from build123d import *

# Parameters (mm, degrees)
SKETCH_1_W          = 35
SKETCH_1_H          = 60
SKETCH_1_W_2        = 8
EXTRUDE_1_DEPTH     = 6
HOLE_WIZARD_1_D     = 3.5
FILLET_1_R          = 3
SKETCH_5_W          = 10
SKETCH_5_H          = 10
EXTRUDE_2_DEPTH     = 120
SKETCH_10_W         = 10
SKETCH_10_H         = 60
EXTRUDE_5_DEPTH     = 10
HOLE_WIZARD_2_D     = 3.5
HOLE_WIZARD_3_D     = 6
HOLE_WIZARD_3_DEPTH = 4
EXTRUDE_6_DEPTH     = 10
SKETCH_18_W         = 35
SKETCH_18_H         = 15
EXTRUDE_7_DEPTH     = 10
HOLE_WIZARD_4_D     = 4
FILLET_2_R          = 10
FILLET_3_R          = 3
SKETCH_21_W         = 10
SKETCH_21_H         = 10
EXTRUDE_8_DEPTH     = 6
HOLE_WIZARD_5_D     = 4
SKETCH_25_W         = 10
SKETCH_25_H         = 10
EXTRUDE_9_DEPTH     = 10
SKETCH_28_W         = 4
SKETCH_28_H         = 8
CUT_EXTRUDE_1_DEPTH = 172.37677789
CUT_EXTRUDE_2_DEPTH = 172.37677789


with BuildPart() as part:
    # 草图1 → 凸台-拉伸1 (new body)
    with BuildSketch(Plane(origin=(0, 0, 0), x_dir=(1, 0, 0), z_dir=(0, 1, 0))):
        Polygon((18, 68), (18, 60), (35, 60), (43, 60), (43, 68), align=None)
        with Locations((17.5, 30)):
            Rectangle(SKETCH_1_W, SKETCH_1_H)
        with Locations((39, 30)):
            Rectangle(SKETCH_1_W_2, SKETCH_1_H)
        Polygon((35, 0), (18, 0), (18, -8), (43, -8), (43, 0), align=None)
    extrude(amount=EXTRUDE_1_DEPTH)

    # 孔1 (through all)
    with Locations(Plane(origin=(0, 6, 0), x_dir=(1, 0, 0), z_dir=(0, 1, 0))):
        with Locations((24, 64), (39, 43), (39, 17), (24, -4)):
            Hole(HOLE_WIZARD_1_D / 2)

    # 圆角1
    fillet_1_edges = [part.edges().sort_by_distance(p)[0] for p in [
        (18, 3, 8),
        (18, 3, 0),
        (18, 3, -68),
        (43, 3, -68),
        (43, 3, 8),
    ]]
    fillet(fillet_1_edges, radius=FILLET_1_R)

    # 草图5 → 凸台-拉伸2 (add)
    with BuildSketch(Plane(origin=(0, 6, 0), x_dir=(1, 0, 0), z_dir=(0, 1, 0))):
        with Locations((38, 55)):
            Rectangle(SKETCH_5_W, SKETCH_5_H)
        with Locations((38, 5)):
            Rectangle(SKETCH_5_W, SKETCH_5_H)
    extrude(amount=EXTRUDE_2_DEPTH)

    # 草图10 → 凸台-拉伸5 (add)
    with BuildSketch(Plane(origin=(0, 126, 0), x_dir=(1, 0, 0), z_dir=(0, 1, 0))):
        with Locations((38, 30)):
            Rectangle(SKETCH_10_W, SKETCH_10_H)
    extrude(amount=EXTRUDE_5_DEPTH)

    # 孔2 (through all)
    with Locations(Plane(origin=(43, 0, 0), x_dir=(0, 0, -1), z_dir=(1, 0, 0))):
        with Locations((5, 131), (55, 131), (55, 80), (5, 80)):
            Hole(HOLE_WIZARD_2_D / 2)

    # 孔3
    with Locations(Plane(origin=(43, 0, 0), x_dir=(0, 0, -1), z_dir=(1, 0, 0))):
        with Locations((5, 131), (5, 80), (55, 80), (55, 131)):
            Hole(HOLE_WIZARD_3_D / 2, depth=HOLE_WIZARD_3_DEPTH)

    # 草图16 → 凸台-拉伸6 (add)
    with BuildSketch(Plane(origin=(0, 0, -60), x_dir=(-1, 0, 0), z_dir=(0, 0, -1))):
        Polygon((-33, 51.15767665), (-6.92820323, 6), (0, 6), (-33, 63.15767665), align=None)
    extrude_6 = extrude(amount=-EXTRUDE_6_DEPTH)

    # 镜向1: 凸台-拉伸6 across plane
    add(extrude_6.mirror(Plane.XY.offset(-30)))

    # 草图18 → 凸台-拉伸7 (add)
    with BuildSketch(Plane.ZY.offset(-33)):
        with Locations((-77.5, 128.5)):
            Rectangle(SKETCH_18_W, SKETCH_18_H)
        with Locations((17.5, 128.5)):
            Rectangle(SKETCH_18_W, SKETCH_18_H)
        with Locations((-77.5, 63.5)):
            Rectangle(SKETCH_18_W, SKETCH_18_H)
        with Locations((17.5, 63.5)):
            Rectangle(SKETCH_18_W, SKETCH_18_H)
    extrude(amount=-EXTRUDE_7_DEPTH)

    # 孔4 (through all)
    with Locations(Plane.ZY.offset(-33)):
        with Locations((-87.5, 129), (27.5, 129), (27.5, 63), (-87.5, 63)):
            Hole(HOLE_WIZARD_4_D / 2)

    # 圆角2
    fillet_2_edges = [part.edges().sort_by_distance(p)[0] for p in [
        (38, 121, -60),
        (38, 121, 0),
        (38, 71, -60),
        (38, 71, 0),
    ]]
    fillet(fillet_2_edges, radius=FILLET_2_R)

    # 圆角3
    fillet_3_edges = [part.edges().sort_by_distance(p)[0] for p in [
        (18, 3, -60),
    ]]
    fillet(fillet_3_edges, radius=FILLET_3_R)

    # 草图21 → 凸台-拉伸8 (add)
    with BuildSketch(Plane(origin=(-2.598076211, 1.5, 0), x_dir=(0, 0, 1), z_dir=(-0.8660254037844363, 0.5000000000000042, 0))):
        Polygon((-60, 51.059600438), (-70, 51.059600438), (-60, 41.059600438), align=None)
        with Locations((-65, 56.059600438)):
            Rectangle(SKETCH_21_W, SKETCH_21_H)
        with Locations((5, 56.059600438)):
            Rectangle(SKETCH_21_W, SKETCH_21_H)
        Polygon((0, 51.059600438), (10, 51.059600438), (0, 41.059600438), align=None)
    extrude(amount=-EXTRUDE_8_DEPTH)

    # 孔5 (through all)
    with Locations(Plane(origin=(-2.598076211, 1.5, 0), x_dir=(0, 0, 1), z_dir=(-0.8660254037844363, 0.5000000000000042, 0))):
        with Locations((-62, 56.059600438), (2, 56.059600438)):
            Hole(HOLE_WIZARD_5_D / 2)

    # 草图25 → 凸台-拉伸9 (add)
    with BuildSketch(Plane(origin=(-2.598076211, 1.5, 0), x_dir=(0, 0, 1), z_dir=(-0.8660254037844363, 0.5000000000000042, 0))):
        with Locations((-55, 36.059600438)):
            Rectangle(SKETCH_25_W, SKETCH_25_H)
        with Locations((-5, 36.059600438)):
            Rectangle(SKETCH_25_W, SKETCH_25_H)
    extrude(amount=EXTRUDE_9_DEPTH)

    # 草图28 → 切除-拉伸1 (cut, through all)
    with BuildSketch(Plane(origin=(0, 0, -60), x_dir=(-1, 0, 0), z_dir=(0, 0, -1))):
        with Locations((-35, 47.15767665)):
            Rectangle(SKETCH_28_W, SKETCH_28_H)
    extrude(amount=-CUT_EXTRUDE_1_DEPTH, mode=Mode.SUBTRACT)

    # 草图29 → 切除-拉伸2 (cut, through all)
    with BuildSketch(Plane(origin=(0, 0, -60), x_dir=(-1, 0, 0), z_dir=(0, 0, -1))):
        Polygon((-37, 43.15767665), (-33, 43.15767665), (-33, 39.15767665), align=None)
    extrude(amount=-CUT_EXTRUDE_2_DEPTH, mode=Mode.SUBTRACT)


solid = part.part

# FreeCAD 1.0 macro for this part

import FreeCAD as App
import Part
import Sketcher

V = App.Vector
Q = App.Units.Quantity


def edges_at(feature, points):
    """Names of the edges that pass closest to the given points."""
    edges = feature.Shape.Edges
    near = lambda p: min(range(len(edges)), key=lambda i: edges[i].distToShape(Part.Vertex(*p))[0])
    return sorted({f"Edge{near(p) + 1}" for p in points})

doc = App.newDocument("Part")
body = doc.addObject("PartDesign::Body", "Body")

# Sketch on XZ plane
sketch1 = body.newObject("Sketcher::SketchObject", "Sketch")
sketch1.AttachmentSupport = (doc.getObject("XZ_Plane"), [""])
sketch1.MapMode = "FlatFace"
sketch1.addGeometry([
    Part.LineSegment(V(18, -68, 0), V(18, -60, 0)),  # 0
    Part.LineSegment(V(18, -60, 0), V(0, -60, 0)),  # 1
    Part.LineSegment(V(0, -60, 0), V(0, 0, 0)),  # 2
    Part.LineSegment(V(0, 0, 0), V(18, 0, 0)),  # 3
    Part.LineSegment(V(18, 0, 0), V(18, 8, 0)),  # 4
    Part.LineSegment(V(18, 8, 0), V(43, 8, 0)),  # 5
    Part.LineSegment(V(43, 8, 0), V(43, -68, 0)),  # 6
    Part.LineSegment(V(43, -68, 0), V(18, -68, 0)),  # 7
], False)
sketch1.addConstraint([
    Sketcher.Constraint("Coincident", 0, 2, 1, 1),
    Sketcher.Constraint("Coincident", 1, 2, 2, 1),
    Sketcher.Constraint("Coincident", 2, 2, 3, 1),
    Sketcher.Constraint("Coincident", 3, 2, 4, 1),
    Sketcher.Constraint("Coincident", 4, 2, 5, 1),
    Sketcher.Constraint("Coincident", 5, 2, 6, 1),
    Sketcher.Constraint("Coincident", 6, 2, 7, 1),
    Sketcher.Constraint("Coincident", 7, 2, 0, 1),
    Sketcher.Constraint("Vertical", 0),
    Sketcher.Constraint("Horizontal", 1),
    Sketcher.Constraint("Vertical", 2),
    Sketcher.Constraint("Horizontal", 3),
    Sketcher.Constraint("Vertical", 4),
    Sketcher.Constraint("Horizontal", 5),
    Sketcher.Constraint("Vertical", 6),
    Sketcher.Constraint("Horizontal", 7),
    Sketcher.Constraint("Coincident", 2, 2, -1, 1),
    Sketcher.Constraint("Vertical", 0, 2, 3, 2),
    Sketcher.Constraint("Equal", 0, 4),
    Sketcher.Constraint("DistanceX", 1, 2, 1, 1, Q("18 mm")),
    Sketcher.Constraint("DistanceX", 5, 1, 5, 2, Q("25 mm")),
    Sketcher.Constraint("DistanceY", 0, 1, 0, 2, Q("8 mm")),
    Sketcher.Constraint("DistanceY", 2, 1, 2, 2, Q("60 mm")),
])
pad1 = body.newObject("PartDesign::Pad", "Pad")
pad1.Profile = sketch1
pad1.Length = 6
pad1.Reversed = True

# Sketch on XZ plane
sketch2 = body.newObject("Sketcher::SketchObject", "Sketch001")
sketch2.AttachmentSupport = (doc.getObject("XZ_Plane"), [""])
sketch2.MapMode = "FlatFace"
sketch2.AttachmentOffset = App.Placement(V(0, 0, -6), App.Rotation())
sketch2.addGeometry([
    Part.Circle(V(24, -64, 0), V(0, 0, 1), 1.8),
    Part.Circle(V(39, -43, 0), V(0, 0, 1), 1.8),
    Part.Circle(V(39, -17, 0), V(0, 0, 1), 1.8),
    Part.Circle(V(24, 4, 0), V(0, 0, 1), 1.8),
], False)
sketch2.addConstraint([
    Sketcher.Constraint("Equal", 0, 1),
    Sketcher.Constraint("Equal", 1, 2),
    Sketcher.Constraint("Equal", 2, 3),
    Sketcher.Constraint("Vertical", 1, 3, 2, 3),
    Sketcher.Constraint("Vertical", 0, 3, 3, 3),
    Sketcher.Constraint("Diameter", 0, Q("3.5 mm")),
    Sketcher.Constraint("DistanceX", -1, 1, 0, 3, Q("24 mm")),
    Sketcher.Constraint("DistanceY", 0, 3, -1, 1, Q("64 mm")),
    Sketcher.Constraint("DistanceX", -1, 1, 1, 3, Q("39 mm")),
    Sketcher.Constraint("DistanceY", 1, 3, -1, 1, Q("43 mm")),
    Sketcher.Constraint("DistanceY", 2, 3, -1, 1, Q("17 mm")),
    Sketcher.Constraint("DistanceY", -1, 1, 3, 3, Q("4 mm")),
])
doc.recompute()
hole = body.newObject("PartDesign::Hole", "Hole")
hole.Profile = sketch2
hole.ThreadType = "None"
hole.Diameter = 3.5
hole.DepthType = "ThroughAll"
hole.Reversed = True
doc.recompute()

fillet = body.newObject("PartDesign::Fillet", "Fillet")
fillet.Base = (hole, edges_at(hole, [
    (18, 3, 8),
    (18, 3, 0),
    (18, 3, -68),
    (43, 3, -68),
    (43, 3, 8),
]))
fillet.Radius = 3

# Sketch on XZ plane
sketch3 = body.newObject("Sketcher::SketchObject", "Sketch002")
sketch3.AttachmentSupport = (doc.getObject("XZ_Plane"), [""])
sketch3.MapMode = "FlatFace"
sketch3.AttachmentOffset = App.Placement(V(0, 0, -6), App.Rotation())
sketch3.addGeometry([
    Part.LineSegment(V(33, -60, 0), V(33, -50, 0)),  # 0
    Part.LineSegment(V(33, -50, 0), V(43, -50, 0)),  # 1
    Part.LineSegment(V(43, -50, 0), V(43, -60, 0)),  # 2
    Part.LineSegment(V(43, -60, 0), V(33, -60, 0)),  # 3
    Part.LineSegment(V(33, -10, 0), V(33, 0, 0)),  # 4
    Part.LineSegment(V(33, 0, 0), V(43, 0, 0)),  # 5
    Part.LineSegment(V(43, 0, 0), V(43, -10, 0)),  # 6
    Part.LineSegment(V(43, -10, 0), V(33, -10, 0)),  # 7
], False)
sketch3.addConstraint([
    Sketcher.Constraint("Coincident", 0, 2, 1, 1),
    Sketcher.Constraint("Coincident", 1, 2, 2, 1),
    Sketcher.Constraint("Coincident", 2, 2, 3, 1),
    Sketcher.Constraint("Coincident", 3, 2, 0, 1),
    Sketcher.Constraint("Coincident", 4, 2, 5, 1),
    Sketcher.Constraint("Coincident", 5, 2, 6, 1),
    Sketcher.Constraint("Coincident", 6, 2, 7, 1),
    Sketcher.Constraint("Coincident", 7, 2, 4, 1),
    Sketcher.Constraint("Vertical", 0),
    Sketcher.Constraint("Horizontal", 1),
    Sketcher.Constraint("Vertical", 2),
    Sketcher.Constraint("Horizontal", 3),
    Sketcher.Constraint("Vertical", 4),
    Sketcher.Constraint("Horizontal", 5),
    Sketcher.Constraint("Vertical", 6),
    Sketcher.Constraint("Horizontal", 7),
    Sketcher.Constraint("PointOnObject", 4, 2, -1),
    Sketcher.Constraint("Vertical", 3, 2, 4, 2),
    Sketcher.Constraint("Vertical", 2, 2, 5, 2),
    Sketcher.Constraint("Equal", 7, 0),
    Sketcher.Constraint("Equal", 2, 4),
    Sketcher.Constraint("DistanceX", 1, 1, 1, 2, Q("10 mm")),
    Sketcher.Constraint("DistanceX", -1, 1, 0, 2, Q("33 mm")),
    Sketcher.Constraint("DistanceY", 0, 2, -1, 1, Q("50 mm")),
])
pad2 = body.newObject("PartDesign::Pad", "Pad001")
pad2.Profile = sketch3
pad2.Length = 120
pad2.Reversed = True

# Sketch on XZ plane
sketch4 = body.newObject("Sketcher::SketchObject", "Sketch003")
sketch4.AttachmentSupport = (doc.getObject("XZ_Plane"), [""])
sketch4.MapMode = "FlatFace"
sketch4.AttachmentOffset = App.Placement(V(0, 0, -126), App.Rotation())
sketch4.addGeometry([
    Part.LineSegment(V(33, -60, 0), V(33, 0, 0)),
    Part.LineSegment(V(33, 0, 0), V(43, 0, 0)),
    Part.LineSegment(V(43, 0, 0), V(43, -60, 0)),
    Part.LineSegment(V(43, -60, 0), V(33, -60, 0)),
], False)
sketch4.addConstraint([
    Sketcher.Constraint("Coincident", 0, 2, 1, 1),
    Sketcher.Constraint("Coincident", 1, 2, 2, 1),
    Sketcher.Constraint("Coincident", 2, 2, 3, 1),
    Sketcher.Constraint("Coincident", 3, 2, 0, 1),
    Sketcher.Constraint("Vertical", 0),
    Sketcher.Constraint("Horizontal", 1),
    Sketcher.Constraint("Vertical", 2),
    Sketcher.Constraint("Horizontal", 3),
    Sketcher.Constraint("PointOnObject", 0, 2, -1),
    Sketcher.Constraint("DistanceX", 1, 1, 1, 2, Q("10 mm")),
    Sketcher.Constraint("DistanceY", 0, 1, 0, 2, Q("60 mm")),
    Sketcher.Constraint("DistanceX", -1, 1, 0, 2, Q("33 mm")),
])
pad3 = body.newObject("PartDesign::Pad", "Pad002")
pad3.Profile = sketch4
pad3.Length = 10
pad3.Reversed = True

# Sketch on YZ plane
sketch5 = body.newObject("Sketcher::SketchObject", "Sketch004")
sketch5.AttachmentSupport = (doc.getObject("YZ_Plane"), [""])
sketch5.MapMode = "FlatFace"
sketch5.AttachmentOffset = App.Placement(V(0, 0, 43), App.Rotation())
sketch5.addGeometry([
    Part.Circle(V(131, -5, 0), V(0, 0, 1), 1.8),
    Part.Circle(V(131, -55, 0), V(0, 0, 1), 1.8),
    Part.Circle(V(80, -55, 0), V(0, 0, 1), 1.8),
    Part.Circle(V(80, -5, 0), V(0, 0, 1), 1.8),
], False)
sketch5.addConstraint([
    Sketcher.Constraint("Equal", 0, 1),
    Sketcher.Constraint("Equal", 1, 2),
    Sketcher.Constraint("Equal", 2, 3),
    Sketcher.Constraint("Horizontal", 1, 3, 2, 3),
    Sketcher.Constraint("Horizontal", 0, 3, 3, 3),
    Sketcher.Constraint("Vertical", 0, 3, 1, 3),
    Sketcher.Constraint("Vertical", 2, 3, 3, 3),
    Sketcher.Constraint("Diameter", 0, Q("3.5 mm")),
    Sketcher.Constraint("DistanceX", -1, 1, 0, 3, Q("131 mm")),
    Sketcher.Constraint("DistanceY", 0, 3, -1, 1, Q("5 mm")),
    Sketcher.Constraint("DistanceY", 1, 3, -1, 1, Q("55 mm")),
    Sketcher.Constraint("DistanceX", -1, 1, 2, 3, Q("80 mm")),
])
doc.recompute()
hole2 = body.newObject("PartDesign::Hole", "Hole001")
hole2.Profile = sketch5
hole2.ThreadType = "None"
hole2.Diameter = 3.5
hole2.DepthType = "ThroughAll"

# Sketch on YZ plane
sketch6 = body.newObject("Sketcher::SketchObject", "Sketch005")
sketch6.AttachmentSupport = (doc.getObject("YZ_Plane"), [""])
sketch6.MapMode = "FlatFace"
sketch6.AttachmentOffset = App.Placement(V(0, 0, 43), App.Rotation())
sketch6.addGeometry([
    Part.Circle(V(131, -5, 0), V(0, 0, 1), 3),
    Part.Circle(V(80, -5, 0), V(0, 0, 1), 3),
    Part.Circle(V(80, -55, 0), V(0, 0, 1), 3),
    Part.Circle(V(131, -55, 0), V(0, 0, 1), 3),
], False)
sketch6.addConstraint([
    Sketcher.Constraint("Equal", 0, 1),
    Sketcher.Constraint("Equal", 1, 2),
    Sketcher.Constraint("Equal", 2, 3),
    Sketcher.Constraint("Horizontal", 0, 3, 1, 3),
    Sketcher.Constraint("Horizontal", 2, 3, 3, 3),
    Sketcher.Constraint("Vertical", 1, 3, 2, 3),
    Sketcher.Constraint("Vertical", 0, 3, 3, 3),
    Sketcher.Constraint("Diameter", 0, Q("6 mm")),
    Sketcher.Constraint("DistanceX", -1, 1, 0, 3, Q("131 mm")),
    Sketcher.Constraint("DistanceY", 0, 3, -1, 1, Q("5 mm")),
    Sketcher.Constraint("DistanceX", -1, 1, 1, 3, Q("80 mm")),
    Sketcher.Constraint("DistanceY", 2, 3, -1, 1, Q("55 mm")),
])
doc.recompute()
hole3 = body.newObject("PartDesign::Hole", "Hole002")
hole3.Profile = sketch6
hole3.ThreadType = "None"
hole3.Diameter = 6
hole3.DepthType = "Dimension"
hole3.Depth = 4
hole3.DrillPoint = "Flat"

# Sketch on XY plane
sketch7 = body.newObject("Sketcher::SketchObject", "Sketch006")
sketch7.AttachmentSupport = (doc.getObject("XY_Plane"), [""])
sketch7.MapMode = "FlatFace"
sketch7.AttachmentOffset = App.Placement(V(0, 0, -60), App.Rotation())
sketch7.addGeometry([
    Part.LineSegment(V(33, 51, 0), V(7, 6, 0)),
    Part.LineSegment(V(7, 6, 0), V(0, 6, 0)),
    Part.LineSegment(V(0, 6, 0), V(33, 63, 0)),
    Part.LineSegment(V(33, 63, 0), V(33, 51, 0)),
], False)
sketch7.addConstraint([
    Sketcher.Constraint("Coincident", 0, 2, 1, 1),
    Sketcher.Constraint("Coincident", 1, 2, 2, 1),
    Sketcher.Constraint("Coincident", 2, 2, 3, 1),
    Sketcher.Constraint("Coincident", 3, 2, 0, 1),
    Sketcher.Constraint("Horizontal", 1),
    Sketcher.Constraint("Vertical", 3),
    Sketcher.Constraint("PointOnObject", 1, 2, -2),
    Sketcher.Constraint("Parallel", 0, 2),
    Sketcher.Constraint("DistanceY", 3, 2, 3, 1, Q("12 mm")),
    Sketcher.Constraint("Angle", 0, Q("-120 deg")),
    Sketcher.Constraint("Distance", 2, Q("66 mm")),
    Sketcher.Constraint("DistanceY", -1, 1, 0, 2, Q("6 mm")),
])
pad4 = body.newObject("PartDesign::Pad", "Pad003")
pad4.Profile = sketch7
pad4.Length = 10
doc.recompute()

datumplane = body.newObject("PartDesign::Plane", "DatumPlane")
datumplane.AttachmentSupport = (doc.getObject("XY_Plane"), [""])
datumplane.MapMode = "FlatFace"
datumplane.AttachmentOffset = App.Placement(V(0, 0, -30), App.Rotation())
mirrored = body.newObject("PartDesign::Mirrored", "Mirrored")
mirrored.Originals = [pad4]
mirrored.MirrorPlane = (datumplane, [""])
body.Tip = mirrored

# Sketch on YZ plane
sketch8 = body.newObject("Sketcher::SketchObject", "Sketch007")
sketch8.AttachmentSupport = (doc.getObject("YZ_Plane"), [""])
sketch8.MapMode = "FlatFace"
sketch8.AttachmentOffset = App.Placement(V(0, 0, 33), App.Rotation())
sketch8.addGeometry([
    Part.LineSegment(V(136, -95, 0), V(121, -95, 0)),  # 0
    Part.LineSegment(V(121, -95, 0), V(121, -60, 0)),  # 1
    Part.LineSegment(V(121, -60, 0), V(136, -60, 0)),  # 2
    Part.LineSegment(V(136, -60, 0), V(136, -95, 0)),  # 3
    Part.LineSegment(V(136, 0, 0), V(121, 0, 0)),  # 4
    Part.LineSegment(V(121, 0, 0), V(121, 35, 0)),  # 5
    Part.LineSegment(V(121, 35, 0), V(136, 35, 0)),  # 6
    Part.LineSegment(V(136, 35, 0), V(136, 0, 0)),  # 7
    Part.LineSegment(V(71, -95, 0), V(56, -95, 0)),  # 8
    Part.LineSegment(V(56, -95, 0), V(56, -60, 0)),  # 9
    Part.LineSegment(V(56, -60, 0), V(71, -60, 0)),  # 10
    Part.LineSegment(V(71, -60, 0), V(71, -95, 0)),  # 11
    Part.LineSegment(V(71, 0, 0), V(56, 0, 0)),  # 12
    Part.LineSegment(V(56, 0, 0), V(56, 35, 0)),  # 13
    Part.LineSegment(V(56, 35, 0), V(71, 35, 0)),  # 14
    Part.LineSegment(V(71, 35, 0), V(71, 0, 0)),  # 15
], False)
sketch8.addConstraint([
    Sketcher.Constraint("Coincident", 0, 2, 1, 1),
    Sketcher.Constraint("Coincident", 1, 2, 2, 1),
    Sketcher.Constraint("Coincident", 2, 2, 3, 1),
    Sketcher.Constraint("Coincident", 3, 2, 0, 1),
    Sketcher.Constraint("Coincident", 4, 2, 5, 1),
    Sketcher.Constraint("Coincident", 5, 2, 6, 1),
    Sketcher.Constraint("Coincident", 6, 2, 7, 1),
    Sketcher.Constraint("Coincident", 7, 2, 4, 1),
    Sketcher.Constraint("Coincident", 8, 2, 9, 1),
    Sketcher.Constraint("Coincident", 9, 2, 10, 1),
    Sketcher.Constraint("Coincident", 10, 2, 11, 1),
    Sketcher.Constraint("Coincident", 11, 2, 8, 1),
    Sketcher.Constraint("Coincident", 12, 2, 13, 1),
    Sketcher.Constraint("Coincident", 13, 2, 14, 1),
    Sketcher.Constraint("Coincident", 14, 2, 15, 1),
    Sketcher.Constraint("Coincident", 15, 2, 12, 1),
    Sketcher.Constraint("Horizontal", 0),
    Sketcher.Constraint("Vertical", 1),
    Sketcher.Constraint("Horizontal", 2),
    Sketcher.Constraint("Vertical", 3),
    Sketcher.Constraint("Horizontal", 4),
    Sketcher.Constraint("Vertical", 5),
    Sketcher.Constraint("Horizontal", 6),
    Sketcher.Constraint("Vertical", 7),
    Sketcher.Constraint("Horizontal", 8),
    Sketcher.Constraint("Vertical", 9),
    Sketcher.Constraint("Horizontal", 10),
    Sketcher.Constraint("Vertical", 11),
    Sketcher.Constraint("Horizontal", 12),
    Sketcher.Constraint("Vertical", 13),
    Sketcher.Constraint("Horizontal", 14),
    Sketcher.Constraint("Vertical", 15),
    Sketcher.Constraint("PointOnObject", 4, 2, -1),
    Sketcher.Constraint("PointOnObject", 12, 2, -1),
    Sketcher.Constraint("Horizontal", 3, 2, 8, 2),
    Sketcher.Constraint("Horizontal", 2, 2, 9, 2),
    Sketcher.Constraint("Horizontal", 6, 2, 13, 2),
    Sketcher.Constraint("Vertical", 1, 2, 4, 2),
    Sketcher.Constraint("Vertical", 3, 2, 6, 2),
    Sketcher.Constraint("Vertical", 9, 2, 12, 2),
    Sketcher.Constraint("Vertical", 11, 2, 14, 2),
    Sketcher.Constraint("Equal", 6, 8),
    Sketcher.Constraint("Equal", 3, 5),
    Sketcher.Constraint("DistanceX", 0, 2, 0, 1, Q("15 mm")),
    Sketcher.Constraint("DistanceY", 1, 1, 1, 2, Q("35 mm")),
    Sketcher.Constraint("DistanceX", -1, 1, 0, 2, Q("121 mm")),
    Sketcher.Constraint("DistanceY", 0, 2, -1, 1, Q("95 mm")),
    Sketcher.Constraint("DistanceX", -1, 1, 8, 2, Q("56 mm")),
])
pad5 = body.newObject("PartDesign::Pad", "Pad004")
pad5.Profile = sketch8
pad5.Length = 10

# Sketch on YZ plane
sketch9 = body.newObject("Sketcher::SketchObject", "Sketch008")
sketch9.AttachmentSupport = (doc.getObject("YZ_Plane"), [""])
sketch9.MapMode = "FlatFace"
sketch9.AttachmentOffset = App.Placement(V(0, 0, 33), App.Rotation())
sketch9.addGeometry([
    Part.Circle(V(129, -87.5, 0), V(0, 0, 1), 2),
    Part.Circle(V(129, 27.5, 0), V(0, 0, 1), 2),
    Part.Circle(V(63, 27.5, 0), V(0, 0, 1), 2),
    Part.Circle(V(63, -87.5, 0), V(0, 0, 1), 2),
], False)
sketch9.addConstraint([
    Sketcher.Constraint("Equal", 0, 1),
    Sketcher.Constraint("Equal", 1, 2),
    Sketcher.Constraint("Equal", 2, 3),
    Sketcher.Constraint("Horizontal", 1, 3, 2, 3),
    Sketcher.Constraint("Horizontal", 0, 3, 3, 3),
    Sketcher.Constraint("Vertical", 0, 3, 1, 3),
    Sketcher.Constraint("Vertical", 2, 3, 3, 3),
    Sketcher.Constraint("Diameter", 0, Q("4 mm")),
    Sketcher.Constraint("DistanceX", -1, 1, 0, 3, Q("129 mm")),
    Sketcher.Constraint("DistanceX", -1, 1, 2, 3, Q("63 mm")),
    Sketcher.Constraint("DistanceY", 0, 3, 1, 3, Q("115 mm")),
    Sketcher.Constraint("DistanceY", 0, 3, -1, 1, Q("87.5 mm")),
])
doc.recompute()
hole4 = body.newObject("PartDesign::Hole", "Hole003")
hole4.Profile = sketch9
hole4.ThreadType = "None"
hole4.Diameter = 4
hole4.DepthType = "ThroughAll"
hole4.Reversed = True
doc.recompute()

fillet2 = body.newObject("PartDesign::Fillet", "Fillet001")
fillet2.Base = (hole4, edges_at(hole4, [
    (38, 121, -60),
    (38, 121, 0),
    (38, 71, -60),
    (38, 71, 0),
]))
fillet2.Radius = 10
doc.recompute()

fillet3 = body.newObject("PartDesign::Fillet", "Fillet002")
fillet3.Base = (fillet2, edges_at(fillet2, [(18, 3, -60)]))
fillet3.Radius = 3

# Sketch on an angled plane
sketch10 = body.newObject("Sketcher::SketchObject", "Sketch009")
sketch10.Placement = App.Placement(V(-2.598076, 1.5, 0), App.Rotation(V(0, 0, 1), V(0.5, 0.866025404, 0), V(-0.866025404, 0.5, 0), "ZXY"))
sketch10.addGeometry([
    Part.LineSegment(V(-70, 51, 0), V(-60, 41, 0)),  # 0
    Part.LineSegment(V(-60, 41, 0), V(-60, 61, 0)),  # 1
    Part.LineSegment(V(-60, 61, 0), V(-70, 61, 0)),  # 2
    Part.LineSegment(V(-70, 61, 0), V(-70, 51, 0)),  # 3
    Part.LineSegment(V(0, 61, 0), V(0, 41, 0)),  # 4
    Part.LineSegment(V(0, 41, 0), V(10, 51, 0)),  # 5
    Part.LineSegment(V(10, 51, 0), V(10, 61, 0)),  # 6
    Part.LineSegment(V(10, 61, 0), V(0, 61, 0)),  # 7
], False)
sketch10.addConstraint([
    Sketcher.Constraint("Coincident", 0, 2, 1, 1),
    Sketcher.Constraint("Coincident", 1, 2, 2, 1),
    Sketcher.Constraint("Coincident", 2, 2, 3, 1),
    Sketcher.Constraint("Coincident", 3, 2, 0, 1),
    Sketcher.Constraint("Coincident", 4, 2, 5, 1),
    Sketcher.Constraint("Coincident", 5, 2, 6, 1),
    Sketcher.Constraint("Coincident", 6, 2, 7, 1),
    Sketcher.Constraint("Coincident", 7, 2, 4, 1),
    Sketcher.Constraint("Vertical", 1),
    Sketcher.Constraint("Horizontal", 2),
    Sketcher.Constraint("Vertical", 3),
    Sketcher.Constraint("Vertical", 4),
    Sketcher.Constraint("Vertical", 6),
    Sketcher.Constraint("Horizontal", 7),
    Sketcher.Constraint("PointOnObject", 4, 2, -2),
    Sketcher.Constraint("Perpendicular", 0, 5),
    Sketcher.Constraint("Horizontal", 0, 2, 4, 2),
    Sketcher.Constraint("Horizontal", 3, 2, 5, 2),
    Sketcher.Constraint("Horizontal", 2, 2, 6, 2),
    Sketcher.Constraint("Equal", 2, 7),
    Sketcher.Constraint("Equal", 7, 3),
    Sketcher.Constraint("DistanceX", 2, 2, 2, 1, Q("10 mm")),
    Sketcher.Constraint("DistanceX", 0, 2, -1, 1, Q("60 mm")),
    Sketcher.Constraint("DistanceY", -1, 1, 0, 2, Q("41.0596 mm")),
])
pad6 = body.newObject("PartDesign::Pad", "Pad005")
pad6.Profile = sketch10
pad6.Length = 6
pad6.Reversed = True

# Sketch on an angled plane
sketch11 = body.newObject("Sketcher::SketchObject", "Sketch010")
sketch11.Placement = App.Placement(V(-2.598076, 1.5, 0), App.Rotation(V(0, 0, 1), V(0.5, 0.866025404, 0), V(-0.866025404, 0.5, 0), "ZXY"))
sketch11.addGeometry([
    Part.Circle(V(-62, 56.1, 0), V(0, 0, 1), 2),
    Part.Circle(V(2, 56.1, 0), V(0, 0, 1), 2),
], False)
sketch11.addConstraint([
    Sketcher.Constraint("Equal", 0, 1),
    Sketcher.Constraint("Horizontal", 0, 3, 1, 3),
    Sketcher.Constraint("Diameter", 0, Q("4 mm")),
    Sketcher.Constraint("DistanceX", 0, 3, -1, 1, Q("62 mm")),
    Sketcher.Constraint("DistanceX", -1, 1, 1, 3, Q("2 mm")),
    Sketcher.Constraint("DistanceY", -1, 1, 0, 3, Q("56.0596 mm")),
])
doc.recompute()
hole5 = body.newObject("PartDesign::Hole", "Hole004")
hole5.Profile = sketch11
hole5.ThreadType = "None"
hole5.Diameter = 4
hole5.DepthType = "ThroughAll"

# Sketch on an angled plane
sketch12 = body.newObject("Sketcher::SketchObject", "Sketch011")
sketch12.Placement = App.Placement(V(-2.598076, 1.5, 0), App.Rotation(V(0, 0, 1), V(0.5, 0.866025404, 0), V(-0.866025404, 0.5, 0), "ZXY"))
sketch12.addGeometry([
    Part.LineSegment(V(-60, 41, 0), V(-60, 31, 0)),  # 0
    Part.LineSegment(V(-60, 31, 0), V(-50, 31, 0)),  # 1
    Part.LineSegment(V(-50, 31, 0), V(-50, 41, 0)),  # 2
    Part.LineSegment(V(-50, 41, 0), V(-60, 41, 0)),  # 3
    Part.LineSegment(V(-10, 41, 0), V(-10, 31, 0)),  # 4
    Part.LineSegment(V(-10, 31, 0), V(0, 31, 0)),  # 5
    Part.LineSegment(V(0, 31, 0), V(0, 41, 0)),  # 6
    Part.LineSegment(V(0, 41, 0), V(-10, 41, 0)),  # 7
], False)
sketch12.addConstraint([
    Sketcher.Constraint("Coincident", 0, 2, 1, 1),
    Sketcher.Constraint("Coincident", 1, 2, 2, 1),
    Sketcher.Constraint("Coincident", 2, 2, 3, 1),
    Sketcher.Constraint("Coincident", 3, 2, 0, 1),
    Sketcher.Constraint("Coincident", 4, 2, 5, 1),
    Sketcher.Constraint("Coincident", 5, 2, 6, 1),
    Sketcher.Constraint("Coincident", 6, 2, 7, 1),
    Sketcher.Constraint("Coincident", 7, 2, 4, 1),
    Sketcher.Constraint("Vertical", 0),
    Sketcher.Constraint("Horizontal", 1),
    Sketcher.Constraint("Vertical", 2),
    Sketcher.Constraint("Horizontal", 3),
    Sketcher.Constraint("Vertical", 4),
    Sketcher.Constraint("Horizontal", 5),
    Sketcher.Constraint("Vertical", 6),
    Sketcher.Constraint("Horizontal", 7),
    Sketcher.Constraint("PointOnObject", 5, 2, -2),
    Sketcher.Constraint("Horizontal", 1, 2, 4, 2),
    Sketcher.Constraint("Horizontal", 3, 2, 6, 2),
    Sketcher.Constraint("Equal", 3, 5),
    Sketcher.Constraint("Equal", 7, 0),
    Sketcher.Constraint("DistanceX", 1, 1, 1, 2, Q("10 mm")),
    Sketcher.Constraint("DistanceX", 0, 2, -1, 1, Q("60 mm")),
    Sketcher.Constraint("DistanceY", -1, 1, 0, 2, Q("31.0596 mm")),
])
pad7 = body.newObject("PartDesign::Pad", "Pad006")
pad7.Profile = sketch12
pad7.Length = 10

# Sketch on XY plane
sketch13 = body.newObject("Sketcher::SketchObject", "Sketch012")
sketch13.AttachmentSupport = (doc.getObject("XY_Plane"), [""])
sketch13.MapMode = "FlatFace"
sketch13.AttachmentOffset = App.Placement(V(0, 0, -60), App.Rotation())
sketch13.addGeometry([
    Part.LineSegment(V(37, 51.2, 0), V(37, 43.2, 0)),
    Part.LineSegment(V(37, 43.2, 0), V(33, 43.2, 0)),
    Part.LineSegment(V(33, 43.2, 0), V(33, 51.2, 0)),
    Part.LineSegment(V(33, 51.2, 0), V(37, 51.2, 0)),
], False)
sketch13.addConstraint([
    Sketcher.Constraint("Coincident", 0, 2, 1, 1),
    Sketcher.Constraint("Coincident", 1, 2, 2, 1),
    Sketcher.Constraint("Coincident", 2, 2, 3, 1),
    Sketcher.Constraint("Coincident", 3, 2, 0, 1),
    Sketcher.Constraint("Vertical", 0),
    Sketcher.Constraint("Horizontal", 1),
    Sketcher.Constraint("Vertical", 2),
    Sketcher.Constraint("Horizontal", 3),
    Sketcher.Constraint("DistanceX", 1, 2, 1, 1, Q("4 mm")),
    Sketcher.Constraint("DistanceY", 0, 2, 0, 1, Q("8 mm")),
    Sketcher.Constraint("DistanceX", -1, 1, 0, 2, Q("37 mm")),
    Sketcher.Constraint("DistanceY", -1, 1, 0, 2, Q("43.157677 mm")),
])
pocket1 = body.newObject("PartDesign::Pocket", "Pocket")
pocket1.Profile = sketch13
pocket1.Type = "ThroughAll"
pocket1.Reversed = True

# Sketch on XY plane
sketch14 = body.newObject("Sketcher::SketchObject", "Sketch013")
sketch14.AttachmentSupport = (doc.getObject("XY_Plane"), [""])
sketch14.MapMode = "FlatFace"
sketch14.AttachmentOffset = App.Placement(V(0, 0, -60), App.Rotation())
sketch14.addGeometry([
    Part.LineSegment(V(33, 43.2, 0), V(37, 43.2, 0)),
    Part.LineSegment(V(37, 43.2, 0), V(33, 39.2, 0)),
    Part.LineSegment(V(33, 39.2, 0), V(33, 43.2, 0)),
], False)
sketch14.addConstraint([
    Sketcher.Constraint("Coincident", 0, 2, 1, 1),
    Sketcher.Constraint("Coincident", 1, 2, 2, 1),
    Sketcher.Constraint("Coincident", 2, 2, 0, 1),
    Sketcher.Constraint("Horizontal", 0),
    Sketcher.Constraint("Vertical", 2),
    Sketcher.Constraint("Equal", 0, 2),
    Sketcher.Constraint("DistanceX", 0, 1, 0, 2, Q("4 mm")),
    Sketcher.Constraint("DistanceX", -1, 1, 0, 2, Q("37 mm")),
    Sketcher.Constraint("DistanceY", -1, 1, 0, 2, Q("43.157677 mm")),
])
pocket2 = body.newObject("PartDesign::Pocket", "Pocket001")
pocket2.Profile = sketch14
pocket2.Type = "ThroughAll"
pocket2.Reversed = True

doc.recompute()
